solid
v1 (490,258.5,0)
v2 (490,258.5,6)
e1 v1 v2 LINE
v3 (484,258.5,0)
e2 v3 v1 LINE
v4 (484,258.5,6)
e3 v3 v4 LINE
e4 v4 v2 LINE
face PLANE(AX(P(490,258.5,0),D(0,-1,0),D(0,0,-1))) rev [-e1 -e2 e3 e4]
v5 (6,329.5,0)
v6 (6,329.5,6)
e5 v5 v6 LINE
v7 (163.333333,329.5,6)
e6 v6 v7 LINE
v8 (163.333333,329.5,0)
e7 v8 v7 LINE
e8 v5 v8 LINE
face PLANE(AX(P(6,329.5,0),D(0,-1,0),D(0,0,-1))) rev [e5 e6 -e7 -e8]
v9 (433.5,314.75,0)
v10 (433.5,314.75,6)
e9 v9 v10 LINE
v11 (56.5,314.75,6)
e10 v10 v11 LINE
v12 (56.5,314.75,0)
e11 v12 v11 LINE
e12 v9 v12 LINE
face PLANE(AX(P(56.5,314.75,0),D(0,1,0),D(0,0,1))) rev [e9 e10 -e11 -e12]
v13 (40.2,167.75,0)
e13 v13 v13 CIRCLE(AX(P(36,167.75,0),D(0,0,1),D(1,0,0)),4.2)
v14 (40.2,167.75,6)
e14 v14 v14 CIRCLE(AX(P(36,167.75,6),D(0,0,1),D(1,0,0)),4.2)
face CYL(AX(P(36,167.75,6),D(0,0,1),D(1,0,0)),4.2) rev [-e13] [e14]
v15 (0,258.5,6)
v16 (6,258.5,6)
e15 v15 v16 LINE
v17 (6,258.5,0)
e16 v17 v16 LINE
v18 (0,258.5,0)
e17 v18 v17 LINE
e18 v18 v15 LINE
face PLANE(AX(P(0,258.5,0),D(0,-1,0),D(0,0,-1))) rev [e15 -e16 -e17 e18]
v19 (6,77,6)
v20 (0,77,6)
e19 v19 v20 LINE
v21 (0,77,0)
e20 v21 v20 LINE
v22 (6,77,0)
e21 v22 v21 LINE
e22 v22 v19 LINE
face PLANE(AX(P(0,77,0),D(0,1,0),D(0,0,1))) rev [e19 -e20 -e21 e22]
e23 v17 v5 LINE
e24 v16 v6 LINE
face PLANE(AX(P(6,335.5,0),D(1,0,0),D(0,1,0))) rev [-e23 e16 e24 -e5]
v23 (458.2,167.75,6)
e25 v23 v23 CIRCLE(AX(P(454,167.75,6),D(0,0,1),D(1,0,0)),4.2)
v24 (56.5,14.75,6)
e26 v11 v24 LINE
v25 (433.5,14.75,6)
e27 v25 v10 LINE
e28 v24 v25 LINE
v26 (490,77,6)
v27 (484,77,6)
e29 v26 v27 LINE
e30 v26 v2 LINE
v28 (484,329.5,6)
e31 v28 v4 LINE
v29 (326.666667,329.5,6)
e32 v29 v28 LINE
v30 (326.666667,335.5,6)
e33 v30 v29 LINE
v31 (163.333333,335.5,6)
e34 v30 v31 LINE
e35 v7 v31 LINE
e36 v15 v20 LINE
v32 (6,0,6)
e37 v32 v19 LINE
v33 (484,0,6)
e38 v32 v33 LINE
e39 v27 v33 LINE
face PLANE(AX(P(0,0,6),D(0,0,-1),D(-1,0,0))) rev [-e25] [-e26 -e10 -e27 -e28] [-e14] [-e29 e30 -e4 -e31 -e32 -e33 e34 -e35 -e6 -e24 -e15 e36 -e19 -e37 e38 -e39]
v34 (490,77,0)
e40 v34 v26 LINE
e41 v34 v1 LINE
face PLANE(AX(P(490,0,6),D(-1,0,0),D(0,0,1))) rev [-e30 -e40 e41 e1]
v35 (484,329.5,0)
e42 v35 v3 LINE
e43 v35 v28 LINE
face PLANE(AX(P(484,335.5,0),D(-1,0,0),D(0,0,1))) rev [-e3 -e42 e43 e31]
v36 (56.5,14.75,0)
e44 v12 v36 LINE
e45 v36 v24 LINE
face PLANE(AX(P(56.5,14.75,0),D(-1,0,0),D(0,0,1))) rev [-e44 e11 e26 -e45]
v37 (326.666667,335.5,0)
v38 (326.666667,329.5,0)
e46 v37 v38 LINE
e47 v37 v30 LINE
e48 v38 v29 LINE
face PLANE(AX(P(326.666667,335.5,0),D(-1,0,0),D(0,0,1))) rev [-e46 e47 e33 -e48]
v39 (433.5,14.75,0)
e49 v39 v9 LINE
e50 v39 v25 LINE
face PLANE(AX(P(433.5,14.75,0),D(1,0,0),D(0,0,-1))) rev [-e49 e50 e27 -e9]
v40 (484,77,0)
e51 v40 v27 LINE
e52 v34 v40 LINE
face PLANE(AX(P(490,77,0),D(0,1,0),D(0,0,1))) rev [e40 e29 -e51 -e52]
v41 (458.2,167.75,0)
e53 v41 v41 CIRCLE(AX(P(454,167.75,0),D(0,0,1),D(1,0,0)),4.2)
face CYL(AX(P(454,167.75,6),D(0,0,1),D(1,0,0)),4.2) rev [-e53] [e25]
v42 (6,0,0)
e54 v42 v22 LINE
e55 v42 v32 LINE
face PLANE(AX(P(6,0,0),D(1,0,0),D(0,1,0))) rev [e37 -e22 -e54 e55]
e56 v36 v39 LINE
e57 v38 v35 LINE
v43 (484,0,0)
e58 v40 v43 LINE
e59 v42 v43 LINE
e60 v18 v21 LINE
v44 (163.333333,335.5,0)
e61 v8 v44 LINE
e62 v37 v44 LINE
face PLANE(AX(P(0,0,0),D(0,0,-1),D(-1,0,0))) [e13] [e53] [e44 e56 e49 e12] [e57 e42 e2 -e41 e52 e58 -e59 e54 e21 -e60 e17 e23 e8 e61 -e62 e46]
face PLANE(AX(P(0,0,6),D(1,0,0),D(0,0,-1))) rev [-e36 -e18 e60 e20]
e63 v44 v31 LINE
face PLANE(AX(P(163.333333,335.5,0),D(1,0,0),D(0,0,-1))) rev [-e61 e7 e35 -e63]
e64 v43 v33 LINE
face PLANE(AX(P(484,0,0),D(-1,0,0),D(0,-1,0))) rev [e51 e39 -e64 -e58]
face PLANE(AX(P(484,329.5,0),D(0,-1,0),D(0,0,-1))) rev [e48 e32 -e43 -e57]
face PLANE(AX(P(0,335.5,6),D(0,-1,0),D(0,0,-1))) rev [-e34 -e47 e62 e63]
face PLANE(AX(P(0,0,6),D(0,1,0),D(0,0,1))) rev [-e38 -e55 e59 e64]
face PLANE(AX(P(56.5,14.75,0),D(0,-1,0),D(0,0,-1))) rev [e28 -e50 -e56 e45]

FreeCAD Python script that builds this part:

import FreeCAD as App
import Part
import Sketcher

V = App.Vector

doc = App.newDocument("Part")
body = doc.addObject("PartDesign::Body", "Body")

sketch1 = body.newObject("Sketcher::SketchObject", "Sketch")
sketch1.AttachmentSupport = (doc.getObject("XY_Plane"), [""])
sketch1.MapMode = "FlatFace"
sketch1.addGeometry(Part.LineSegment(V(0, 336, 0), V(0, 0, 0)), False)
sketch1.addGeometry(Part.LineSegment(V(0, 0, 0), V(490, 0, 0)), False)
sketch1.addGeometry(Part.LineSegment(V(490, 0, 0), V(490, 336, 0)), False)
sketch1.addGeometry(Part.LineSegment(V(490, 336, 0), V(0, 336, 0)), False)
sketch1.addConstraint(Sketcher.Constraint("Coincident", 0, 2, 1, 1))
sketch1.addConstraint(Sketcher.Constraint("Coincident", 1, 2, 2, 1))
sketch1.addConstraint(Sketcher.Constraint("Coincident", 2, 2, 3, 1))
sketch1.addConstraint(Sketcher.Constraint("Coincident", 3, 2, 0, 1))
sketch1.addConstraint(Sketcher.Constraint("Vertical", 0))
sketch1.addConstraint(Sketcher.Constraint("Horizontal", 1))
sketch1.addConstraint(Sketcher.Constraint("Vertical", 2))
sketch1.addConstraint(Sketcher.Constraint("Horizontal", 3))
sketch1.addConstraint(Sketcher.Constraint("Coincident", 0, 2, -1, 1))
sketch1.addConstraint(Sketcher.Constraint("DistanceX", 1, 1, 1, 2, 490.0))
sketch1.addConstraint(Sketcher.Constraint("DistanceY", 0, 2, 0, 1, 335.5))
pad1 = body.newObject("PartDesign::Pad", "Pad")
pad1.Profile = sketch1
pad1.Length = 6

sketch2 = body.newObject("Sketcher::SketchObject", "Sketch001")
sketch2.AttachmentSupport = (doc.getObject("XY_Plane"), [""])
sketch2.MapMode = "FlatFace"
sketch2.AttachmentOffset = App.Placement(V(0, 0, 6), App.Rotation())
sketch2.addGeometry(Part.LineSegment(V(0, 336, 0), V(0, 258, 0)), False)
sketch2.addGeometry(Part.LineSegment(V(0, 258, 0), V(6, 258, 0)), False)
sketch2.addGeometry(Part.LineSegment(V(6, 258, 0), V(6, 336, 0)), False)
sketch2.addGeometry(Part.LineSegment(V(6, 336, 0), V(0, 336, 0)), False)
sketch2.addGeometry(Part.LineSegment(V(0, 77, 0), V(0, 0, 0)), False)
sketch2.addGeometry(Part.LineSegment(V(0, 0, 0), V(6, 0, 0)), False)
sketch2.addGeometry(Part.LineSegment(V(6, 0, 0), V(6, 77, 0)), False)
sketch2.addGeometry(Part.LineSegment(V(6, 77, 0), V(0, 77, 0)), False)
sketch2.addGeometry(Part.LineSegment(V(484, 336, 0), V(484, 258, 0)), False)
sketch2.addGeometry(Part.LineSegment(V(484, 258, 0), V(490, 258, 0)), False)
sketch2.addGeometry(Part.LineSegment(V(490, 258, 0), V(490, 336, 0)), False)
sketch2.addGeometry(Part.LineSegment(V(490, 336, 0), V(484, 336, 0)), False)
sketch2.addGeometry(Part.LineSegment(V(484, 77, 0), V(484, 0, 0)), False)
sketch2.addGeometry(Part.LineSegment(V(484, 0, 0), V(490, 0, 0)), False)
sketch2.addGeometry(Part.LineSegment(V(490, 0, 0), V(490, 77, 0)), False)
sketch2.addGeometry(Part.LineSegment(V(490, 77, 0), V(484, 77, 0)), False)
sketch2.addConstraint(Sketcher.Constraint("Coincident", 0, 2, 1, 1))
sketch2.addConstraint(Sketcher.Constraint("Coincident", 1, 2, 2, 1))
sketch2.addConstraint(Sketcher.Constraint("Coincident", 2, 2, 3, 1))
sketch2.addConstraint(Sketcher.Constraint("Coincident", 3, 2, 0, 1))
sketch2.addConstraint(Sketcher.Constraint("Coincident", 4, 2, 5, 1))
sketch2.addConstraint(Sketcher.Constraint("Coincident", 5, 2, 6, 1))
sketch2.addConstraint(Sketcher.Constraint("Coincident", 6, 2, 7, 1))
sketch2.addConstraint(Sketcher.Constraint("Coincident", 7, 2, 4, 1))
sketch2.addConstraint(Sketcher.Constraint("Coincident", 8, 2, 9, 1))
sketch2.addConstraint(Sketcher.Constraint("Coincident", 9, 2, 10, 1))
sketch2.addConstraint(Sketcher.Constraint("Coincident", 10, 2, 11, 1))
sketch2.addConstraint(Sketcher.Constraint("Coincident", 11, 2, 8, 1))
sketch2.addConstraint(Sketcher.Constraint("Coincident", 12, 2, 13, 1))
sketch2.addConstraint(Sketcher.Constraint("Coincident", 13, 2, 14, 1))
sketch2.addConstraint(Sketcher.Constraint("Coincident", 14, 2, 15, 1))
sketch2.addConstraint(Sketcher.Constraint("Coincident", 15, 2, 12, 1))
sketch2.addConstraint(Sketcher.Constraint("Vertical", 0))
sketch2.addConstraint(Sketcher.Constraint("Horizontal", 1))
sketch2.addConstraint(Sketcher.Constraint("Vertical", 2))
sketch2.addConstraint(Sketcher.Constraint("Horizontal", 3))
sketch2.addConstraint(Sketcher.Constraint("Vertical", 4))
sketch2.addConstraint(Sketcher.Constraint("Horizontal", 5))
sketch2.addConstraint(Sketcher.Constraint("Vertical", 6))
sketch2.addConstraint(Sketcher.Constraint("Horizontal", 7))
sketch2.addConstraint(Sketcher.Constraint("Vertical", 8))
sketch2.addConstraint(Sketcher.Constraint("Horizontal", 9))
sketch2.addConstraint(Sketcher.Constraint("Vertical", 10))
sketch2.addConstraint(Sketcher.Constraint("Horizontal", 11))
sketch2.addConstraint(Sketcher.Constraint("Vertical", 12))
sketch2.addConstraint(Sketcher.Constraint("Horizontal", 13))
sketch2.addConstraint(Sketcher.Constraint("Vertical", 14))
sketch2.addConstraint(Sketcher.Constraint("Horizontal", 15))
sketch2.addConstraint(Sketcher.Constraint("Coincident", 4, 2, -1, 1))
sketch2.addConstraint(Sketcher.Constraint("PointOnObject", 0, 2, -2))
sketch2.addConstraint(Sketcher.Constraint("PointOnObject", 12, 2, -1))
sketch2.addConstraint(Sketcher.Constraint("Horizontal", 1, 2, 8, 2))
sketch2.addConstraint(Sketcher.Constraint("Horizontal", 3, 2, 10, 2))
sketch2.addConstraint(Sketcher.Constraint("Horizontal", 7, 2, 14, 2))
sketch2.addConstraint(Sketcher.Constraint("Vertical", 2, 2, 5, 2))
sketch2.addConstraint(Sketcher.Constraint("Vertical", 11, 2, 12, 2))
sketch2.addConstraint(Sketcher.Constraint("Vertical", 10, 2, 13, 2))
sketch2.addConstraint(Sketcher.Constraint("Equal", 7, 9))
sketch2.addConstraint(Sketcher.Constraint("Equal", 2, 4))
sketch2.addConstraint(Sketcher.Constraint("DistanceX", 1, 1, 1, 2, 6.0))
sketch2.addConstraint(Sketcher.Constraint("DistanceY", 0, 2, 0, 1, 77.0))
sketch2.addConstraint(Sketcher.Constraint("DistanceX", -1, 1, 8, 2, 484.0))
sketch2.addConstraint(Sketcher.Constraint("DistanceY", -1, 1, 0, 2, 258.5))
pocket1 = body.newObject("PartDesign::Pocket", "Pocket")
pocket1.Profile = sketch2
pocket1.Type = "ThroughAll"

sketch3 = body.newObject("Sketcher::SketchObject", "Sketch002")
sketch3.AttachmentSupport = (doc.getObject("XY_Plane"), [""])
sketch3.MapMode = "FlatFace"
sketch3.AttachmentOffset = App.Placement(V(0, 0, 6), App.Rotation())
sketch3.addGeometry(Part.LineSegment(V(56, 315, 0), V(56, 15, 0)), False)
sketch3.addGeometry(Part.LineSegment(V(56, 15, 0), V(434, 15, 0)), False)
sketch3.addGeometry(Part.LineSegment(V(434, 15, 0), V(434, 315, 0)), False)
sketch3.addGeometry(Part.LineSegment(V(434, 315, 0), V(56, 315, 0)), False)
sketch3.addConstraint(Sketcher.Constraint("Coincident", 0, 2, 1, 1))
sketch3.addConstraint(Sketcher.Constraint("Coincident", 1, 2, 2, 1))
sketch3.addConstraint(Sketcher.Constraint("Coincident", 2, 2, 3, 1))
sketch3.addConstraint(Sketcher.Constraint("Coincident", 3, 2, 0, 1))
sketch3.addConstraint(Sketcher.Constraint("Vertical", 0))
sketch3.addConstraint(Sketcher.Constraint("Horizontal", 1))
sketch3.addConstraint(Sketcher.Constraint("Vertical", 2))
sketch3.addConstraint(Sketcher.Constraint("Horizontal", 3))
sketch3.addConstraint(Sketcher.Constraint("DistanceX", 1, 1, 1, 2, 377.0))
sketch3.addConstraint(Sketcher.Constraint("DistanceY", 0, 2, 0, 1, 300.0))
sketch3.addConstraint(Sketcher.Constraint("DistanceX", -1, 1, 0, 2, 56.5))
sketch3.addConstraint(Sketcher.Constraint("DistanceY", -1, 1, 0, 2, 14.75))
pocket2 = body.newObject("PartDesign::Pocket", "Pocket001")
pocket2.Profile = sketch3
pocket2.Type = "ThroughAll"

sketch4 = body.newObject("Sketcher::SketchObject", "Sketch003")
sketch4.AttachmentSupport = (doc.getObject("XY_Plane"), [""])
sketch4.MapMode = "FlatFace"
sketch4.AttachmentOffset = App.Placement(V(0, 0, 6), App.Rotation())
sketch4.addGeometry(Part.LineSegment(V(327, 336, 0), V(327, 330, 0)), False)
sketch4.addGeometry(Part.LineSegment(V(327, 330, 0), V(484, 330, 0)), False)
sketch4.addGeometry(Part.LineSegment(V(484, 330, 0), V(484, 336, 0)), False)
sketch4.addGeometry(Part.LineSegment(V(484, 336, 0), V(327, 336, 0)), False)
sketch4.addGeometry(Part.LineSegment(V(6, 336, 0), V(6, 330, 0)), False)
sketch4.addGeometry(Part.LineSegment(V(6, 330, 0), V(163, 330, 0)), False)
sketch4.addGeometry(Part.LineSegment(V(163, 330, 0), V(163, 336, 0)), False)
sketch4.addGeometry(Part.LineSegment(V(163, 336, 0), V(6, 336, 0)), False)
sketch4.addConstraint(Sketcher.Constraint("Coincident", 0, 2, 1, 1))
sketch4.addConstraint(Sketcher.Constraint("Coincident", 1, 2, 2, 1))
sketch4.addConstraint(Sketcher.Constraint("Coincident", 2, 2, 3, 1))
sketch4.addConstraint(Sketcher.Constraint("Coincident", 3, 2, 0, 1))
sketch4.addConstraint(Sketcher.Constraint("Coincident", 4, 2, 5, 1))
sketch4.addConstraint(Sketcher.Constraint("Coincident", 5, 2, 6, 1))
sketch4.addConstraint(Sketcher.Constraint("Coincident", 6, 2, 7, 1))
sketch4.addConstraint(Sketcher.Constraint("Coincident", 7, 2, 4, 1))
sketch4.addConstraint(Sketcher.Constraint("Vertical", 0))
sketch4.addConstraint(Sketcher.Constraint("Horizontal", 1))
sketch4.addConstraint(Sketcher.Constraint("Vertical", 2))
sketch4.addConstraint(Sketcher.Constraint("Horizontal", 3))
sketch4.addConstraint(Sketcher.Constraint("Vertical", 4))
sketch4.addConstraint(Sketcher.Constraint("Horizontal", 5))
sketch4.addConstraint(Sketcher.Constraint("Vertical", 6))
sketch4.addConstraint(Sketcher.Constraint("Horizontal", 7))
sketch4.addConstraint(Sketcher.Constraint("Horizontal", 1, 2, 4, 2))
sketch4.addConstraint(Sketcher.Constraint("Horizontal", 3, 2, 6, 2))
sketch4.addConstraint(Sketcher.Constraint("Equal", 3, 5))
sketch4.addConstraint(Sketcher.Constraint("DistanceY", 0, 2, 0, 1, 6.0))
sketch4.addConstraint(Sketcher.Constraint("DistanceX", -1, 1, 1, 2, 484.0))
sketch4.addConstraint(Sketcher.Constraint("DistanceX", -1, 1, 4, 2, 6.0))
sketch4.addConstraint(Sketcher.Constraint("DistanceY", -1, 1, 0, 2, 329.5))
sketch4.addConstraint(Sketcher.Constraint("DistanceX", 1, 1, 1, 2, 157.333333))
pocket3 = body.newObject("PartDesign::Pocket", "Pocket002")
pocket3.Profile = sketch4
pocket3.Type = "ThroughAll"

sketch5 = body.newObject("Sketcher::SketchObject", "Sketch004")
sketch5.AttachmentSupport = (doc.getObject("XY_Plane"), [""])
sketch5.MapMode = "FlatFace"
sketch5.AttachmentOffset = App.Placement(V(0, 0, 6), App.Rotation())
sketch5.addGeometry(Part.Circle(V(36, 167.8, 0), V(0, 0, 1), 4.2), False)
sketch5.addGeometry(Part.Circle(V(454, 167.8, 0), V(0, 0, 1), 4.2), False)
sketch5.addConstraint(Sketcher.Constraint("Equal", 0, 1))
sketch5.addConstraint(Sketcher.Constraint("Horizontal", 0, 3, 1, 3))
sketch5.addConstraint(Sketcher.Constraint("Diameter", 0, 8.4))
sketch5.addConstraint(Sketcher.Constraint("DistanceX", -1, 1, 0, 3, 36.0))
sketch5.addConstraint(Sketcher.Constraint("DistanceX", -1, 1, 1, 3, 454.0))
sketch5.addConstraint(Sketcher.Constraint("DistanceY", -1, 1, 0, 3, 167.75))
doc.recompute()
hole = body.newObject("PartDesign::Hole", "Hole")
hole.Profile = sketch5
hole.ThreadType = "None"
hole.Diameter = 8.4
hole.DepthType = "ThroughAll"

doc.recompute()
